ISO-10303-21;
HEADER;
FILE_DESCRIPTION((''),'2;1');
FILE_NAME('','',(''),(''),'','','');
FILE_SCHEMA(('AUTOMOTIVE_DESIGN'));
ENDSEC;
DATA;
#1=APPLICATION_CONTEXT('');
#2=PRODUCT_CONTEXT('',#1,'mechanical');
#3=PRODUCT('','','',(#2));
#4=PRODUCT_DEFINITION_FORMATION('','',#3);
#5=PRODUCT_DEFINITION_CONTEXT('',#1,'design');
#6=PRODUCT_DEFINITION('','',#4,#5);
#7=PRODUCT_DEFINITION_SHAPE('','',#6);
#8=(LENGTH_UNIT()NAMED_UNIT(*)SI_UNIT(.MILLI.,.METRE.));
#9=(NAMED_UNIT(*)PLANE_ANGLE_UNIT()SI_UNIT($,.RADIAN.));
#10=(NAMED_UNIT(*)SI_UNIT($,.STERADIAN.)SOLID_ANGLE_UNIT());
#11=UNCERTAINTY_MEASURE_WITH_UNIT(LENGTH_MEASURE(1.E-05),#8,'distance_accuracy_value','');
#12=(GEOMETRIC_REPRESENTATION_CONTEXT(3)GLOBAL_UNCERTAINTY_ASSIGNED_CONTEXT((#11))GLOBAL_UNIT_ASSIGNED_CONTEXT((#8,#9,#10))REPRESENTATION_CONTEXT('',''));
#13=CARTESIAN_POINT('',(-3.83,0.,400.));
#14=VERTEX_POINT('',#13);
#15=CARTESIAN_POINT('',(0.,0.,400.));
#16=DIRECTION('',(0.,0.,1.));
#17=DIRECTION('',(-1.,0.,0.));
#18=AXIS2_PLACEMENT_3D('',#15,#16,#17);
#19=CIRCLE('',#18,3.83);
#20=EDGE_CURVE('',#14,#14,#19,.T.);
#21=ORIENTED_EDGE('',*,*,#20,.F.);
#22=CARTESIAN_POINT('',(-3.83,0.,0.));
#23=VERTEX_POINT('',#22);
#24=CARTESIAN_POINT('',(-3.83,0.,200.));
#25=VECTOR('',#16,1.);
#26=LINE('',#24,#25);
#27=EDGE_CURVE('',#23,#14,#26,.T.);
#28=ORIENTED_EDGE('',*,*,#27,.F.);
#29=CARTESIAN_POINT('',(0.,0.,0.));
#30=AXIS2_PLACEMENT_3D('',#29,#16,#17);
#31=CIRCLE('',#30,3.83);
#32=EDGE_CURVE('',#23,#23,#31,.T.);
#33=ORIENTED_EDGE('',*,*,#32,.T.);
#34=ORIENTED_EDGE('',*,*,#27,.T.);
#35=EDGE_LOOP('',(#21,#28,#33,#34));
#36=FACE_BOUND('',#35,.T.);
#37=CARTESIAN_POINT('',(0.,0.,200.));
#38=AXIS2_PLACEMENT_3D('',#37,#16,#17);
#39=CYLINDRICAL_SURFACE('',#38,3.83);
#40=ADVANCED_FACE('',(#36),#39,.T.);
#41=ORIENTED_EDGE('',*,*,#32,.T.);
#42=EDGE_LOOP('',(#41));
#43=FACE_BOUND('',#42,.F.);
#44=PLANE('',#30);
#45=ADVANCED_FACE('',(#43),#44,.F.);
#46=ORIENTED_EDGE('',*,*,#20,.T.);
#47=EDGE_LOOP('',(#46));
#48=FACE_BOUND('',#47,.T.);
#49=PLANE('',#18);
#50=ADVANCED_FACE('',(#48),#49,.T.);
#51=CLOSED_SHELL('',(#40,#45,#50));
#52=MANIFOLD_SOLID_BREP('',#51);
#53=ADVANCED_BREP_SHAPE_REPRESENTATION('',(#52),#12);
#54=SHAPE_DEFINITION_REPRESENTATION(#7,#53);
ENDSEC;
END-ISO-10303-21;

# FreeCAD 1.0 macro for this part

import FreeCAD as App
import Part
import Sketcher
from FreeCAD import Vector


def add_polygon(sketch, points):
    """Adds a closed chain of lines whose ends are joined by coincident constraints."""
    first, n = sketch.GeometryCount, len(points)
    for a, b in zip(points, points[1:] + points[:1]):
        sketch.addGeometry(Part.LineSegment(App.Vector(*a, 0), App.Vector(*b, 0)), False)
    for i in range(n):
        sketch.addConstraint(Sketcher.Constraint("Coincident", first + i, 2, first + (i + 1) % n, 1))

doc = App.newDocument("Part")
params = doc.addObject("Spreadsheet::Sheet", "Params")
for row, (alias, value) in enumerate([
    ("sketch1_height", "400 mm"),
    ("sketch1_width", "3.83 mm"),
    ("revolution_angle", "360 deg"),
], start=1):
    params.set(f"A{row}", alias)
    params.set(f"B{row}", "=" + value)
    params.setAlias(f"B{row}", alias)

body = doc.addObject("PartDesign::Body", "Body")

sketch1 = body.newObject("Sketcher::SketchObject", "Sketch")
sketch1.AttachmentSupport = (doc.getObject("XZ_Plane"), [""])
sketch1.MapMode = "FlatFace"
add_polygon(sketch1, [(-3.8, 400), (-3.8, 0), (0, 0), (0, 400)])
sketch1.addConstraint(Sketcher.Constraint("Vertical", 0))
sketch1.addConstraint(Sketcher.Constraint("Horizontal", 1))
sketch1.addConstraint(Sketcher.Constraint("Vertical", 2))
sketch1.addConstraint(Sketcher.Constraint("Horizontal", 3))
sketch1.addConstraint(Sketcher.Constraint("Coincident", 1, 2, -1, 1))
sketch1.addConstraint(Sketcher.Constraint("DistanceY", 0, 2, 0, 1, 400.0))
sketch1.addConstraint(Sketcher.Constraint("DistanceX", 1, 1, 1, 2, 3.83))
sketch1.setExpression("Constraints[9]", "Params.sketch1_height")
sketch1.setExpression("Constraints[10]", "Params.sketch1_width")
revolution = body.newObject("PartDesign::Revolution", "Revolution")
revolution.Profile = sketch1
revolution.ReferenceAxis = (sketch1, ["V_Axis"])
revolution.setExpression("Angle", "Params.revolution_angle")

doc.recompute()
